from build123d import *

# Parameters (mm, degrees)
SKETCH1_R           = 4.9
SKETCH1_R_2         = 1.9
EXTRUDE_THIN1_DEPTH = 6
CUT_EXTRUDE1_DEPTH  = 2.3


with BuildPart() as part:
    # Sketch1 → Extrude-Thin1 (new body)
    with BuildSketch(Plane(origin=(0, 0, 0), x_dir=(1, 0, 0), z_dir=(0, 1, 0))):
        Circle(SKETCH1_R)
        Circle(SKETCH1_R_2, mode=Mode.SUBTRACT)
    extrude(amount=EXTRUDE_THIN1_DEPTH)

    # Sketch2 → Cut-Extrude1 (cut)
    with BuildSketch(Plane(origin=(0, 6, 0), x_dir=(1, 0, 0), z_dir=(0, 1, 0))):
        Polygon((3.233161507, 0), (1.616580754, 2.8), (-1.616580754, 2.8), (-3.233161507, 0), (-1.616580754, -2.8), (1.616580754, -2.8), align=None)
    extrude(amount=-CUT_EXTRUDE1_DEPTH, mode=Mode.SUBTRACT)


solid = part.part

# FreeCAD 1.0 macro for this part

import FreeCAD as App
import Part
import Sketcher

V = App.Vector
Q = App.Units.Quantity


def add_polygon(sketch, points):
    """Adds a closed chain of lines whose ends are joined by coincident constraints."""
    first, n = sketch.GeometryCount, len(points)
    for a, b in zip(points, points[1:] + points[:1]):
        sketch.addGeometry(Part.LineSegment(App.Vector(*a, 0), App.Vector(*b, 0)), False)
    for i in range(n):
        sketch.addConstraint(Sketcher.Constraint("Coincident", first + i, 2, first + (i + 1) % n, 1))

doc = App.newDocument("Part")
body = doc.addObject("PartDesign::Body", "Body")

sketch1 = body.newObject("Sketcher::SketchObject", "Sketch")
sketch1.AttachmentSupport = (doc.getObject("XZ_Plane"), [""])
sketch1.MapMode = "FlatFace"
sketch1.addGeometry([
    Part.Circle(V(0, 0, 0), V(0, 0, 1), 4.9),
    Part.Circle(V(0, 0, 0), V(0, 0, 1), 1.9),
], False)
sketch1.addConstraint([
    Sketcher.Constraint("Coincident", 0, 3, -1, 1),
    Sketcher.Constraint("Coincident", 1, 3, -1, 1),
    Sketcher.Constraint("Diameter", 0, Q("9.8 mm")),
    Sketcher.Constraint("Diameter", 1, Q("3.8 mm")),
])
pad1 = body.newObject("PartDesign::Pad", "Pad")
pad1.Profile = sketch1
pad1.Length = 6
pad1.Reversed = True

sketch2 = body.newObject("Sketcher::SketchObject", "Sketch001")
sketch2.AttachmentSupport = (doc.getObject("XZ_Plane"), [""])
sketch2.MapMode = "FlatFace"
sketch2.AttachmentOffset = App.Placement(V(0, 0, -6), App.Rotation())
add_polygon(sketch2, [(3.233162, 0), (1.616581, -2.8), (-1.616581, -2.8), (-3.233162, 0), (-1.616581, 2.8), (1.616581, 2.8)])
sketch2.addConstraint([
    Sketcher.Constraint("Horizontal", 1),
    Sketcher.Constraint("Horizontal", 4),
    Sketcher.Constraint("Symmetric", 0, 2, 3, 2, -1, 1),
    Sketcher.Constraint("Symmetric", 2, 2, 5, 2, -1, 1),
    Sketcher.Constraint("PointOnObject", 2, 2, -1),
    Sketcher.Constraint("Parallel", 2, 5),
    Sketcher.Constraint("Vertical", 1, 2, 3, 2),
    Sketcher.Constraint("Angle", 0, Q("-120 deg")),
    Sketcher.Constraint("DistanceY", 0, 2, -1, 1, Q("2.8 mm")),
    Sketcher.Constraint("DistanceX", 1, 2, 1, 1, Q("3.233162 mm")),
])
pocket1 = body.newObject("PartDesign::Pocket", "Pocket")
pocket1.Profile = sketch2
pocket1.Length = 2.3
pocket1.Reversed = True

doc.recompute()
